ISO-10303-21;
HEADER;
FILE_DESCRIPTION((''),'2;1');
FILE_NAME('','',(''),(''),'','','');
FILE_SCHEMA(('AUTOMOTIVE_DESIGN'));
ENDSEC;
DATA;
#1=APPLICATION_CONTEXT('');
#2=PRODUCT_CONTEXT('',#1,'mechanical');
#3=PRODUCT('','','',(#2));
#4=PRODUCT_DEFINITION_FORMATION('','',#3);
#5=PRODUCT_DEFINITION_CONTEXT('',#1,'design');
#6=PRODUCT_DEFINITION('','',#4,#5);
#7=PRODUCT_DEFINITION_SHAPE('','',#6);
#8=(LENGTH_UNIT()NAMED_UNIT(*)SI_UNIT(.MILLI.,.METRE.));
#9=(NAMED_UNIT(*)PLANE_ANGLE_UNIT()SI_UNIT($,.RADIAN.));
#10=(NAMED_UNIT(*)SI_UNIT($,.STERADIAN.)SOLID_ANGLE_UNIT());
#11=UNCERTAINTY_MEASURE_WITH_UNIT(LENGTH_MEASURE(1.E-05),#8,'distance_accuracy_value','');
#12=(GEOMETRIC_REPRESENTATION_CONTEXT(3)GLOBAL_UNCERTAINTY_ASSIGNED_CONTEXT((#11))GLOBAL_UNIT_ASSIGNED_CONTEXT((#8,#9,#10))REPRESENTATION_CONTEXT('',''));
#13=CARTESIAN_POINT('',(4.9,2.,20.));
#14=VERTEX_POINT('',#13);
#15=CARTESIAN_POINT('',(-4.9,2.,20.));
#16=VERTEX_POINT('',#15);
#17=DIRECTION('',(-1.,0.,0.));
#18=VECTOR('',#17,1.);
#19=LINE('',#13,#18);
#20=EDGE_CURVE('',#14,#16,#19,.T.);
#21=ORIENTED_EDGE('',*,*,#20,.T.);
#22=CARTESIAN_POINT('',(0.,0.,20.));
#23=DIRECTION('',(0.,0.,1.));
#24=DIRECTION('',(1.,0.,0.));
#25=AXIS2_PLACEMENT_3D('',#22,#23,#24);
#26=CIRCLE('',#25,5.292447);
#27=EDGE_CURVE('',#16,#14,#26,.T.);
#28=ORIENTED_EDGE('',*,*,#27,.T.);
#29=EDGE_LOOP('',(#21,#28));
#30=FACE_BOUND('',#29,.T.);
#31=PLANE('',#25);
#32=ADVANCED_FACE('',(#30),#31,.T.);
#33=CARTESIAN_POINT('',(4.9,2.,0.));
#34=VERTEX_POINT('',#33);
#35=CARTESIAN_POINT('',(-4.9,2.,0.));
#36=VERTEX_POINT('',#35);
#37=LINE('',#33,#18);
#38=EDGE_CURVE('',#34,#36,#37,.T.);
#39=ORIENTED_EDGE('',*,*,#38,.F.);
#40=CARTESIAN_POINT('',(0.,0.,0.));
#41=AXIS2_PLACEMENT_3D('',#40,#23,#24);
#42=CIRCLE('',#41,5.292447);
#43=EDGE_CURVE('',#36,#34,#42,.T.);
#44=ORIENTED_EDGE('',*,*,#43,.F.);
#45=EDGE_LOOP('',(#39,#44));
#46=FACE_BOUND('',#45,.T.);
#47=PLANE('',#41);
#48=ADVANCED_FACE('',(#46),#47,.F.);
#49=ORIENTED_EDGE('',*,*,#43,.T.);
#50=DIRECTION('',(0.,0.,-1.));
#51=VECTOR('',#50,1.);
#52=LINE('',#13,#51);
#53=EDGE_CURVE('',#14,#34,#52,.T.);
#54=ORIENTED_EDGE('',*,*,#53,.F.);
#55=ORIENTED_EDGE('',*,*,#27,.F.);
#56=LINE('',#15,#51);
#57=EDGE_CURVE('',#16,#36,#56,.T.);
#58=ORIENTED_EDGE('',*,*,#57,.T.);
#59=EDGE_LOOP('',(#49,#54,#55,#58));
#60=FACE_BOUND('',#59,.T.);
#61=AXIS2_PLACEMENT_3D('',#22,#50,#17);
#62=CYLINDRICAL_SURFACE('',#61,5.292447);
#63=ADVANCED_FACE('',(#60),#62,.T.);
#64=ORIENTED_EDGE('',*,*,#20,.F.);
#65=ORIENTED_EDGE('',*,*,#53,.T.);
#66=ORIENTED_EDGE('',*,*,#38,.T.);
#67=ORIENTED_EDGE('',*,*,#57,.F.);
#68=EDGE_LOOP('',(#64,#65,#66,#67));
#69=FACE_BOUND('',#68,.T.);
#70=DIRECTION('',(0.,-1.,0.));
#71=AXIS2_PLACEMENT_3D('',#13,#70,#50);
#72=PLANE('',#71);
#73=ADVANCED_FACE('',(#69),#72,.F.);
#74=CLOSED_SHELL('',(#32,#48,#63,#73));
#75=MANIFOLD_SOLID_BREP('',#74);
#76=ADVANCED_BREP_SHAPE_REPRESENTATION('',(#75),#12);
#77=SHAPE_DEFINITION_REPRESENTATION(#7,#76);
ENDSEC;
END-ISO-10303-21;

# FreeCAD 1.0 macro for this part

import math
import FreeCAD as App
import Part
import Sketcher
Q = App.Units.Quantity

doc = App.newDocument("Part")
params = doc.addObject("Spreadsheet::Sheet", "Params")
for row, (alias, value) in enumerate([
    ("sketch1_width", "9.8 mm"),
    ("pad1_length", "20 mm"),
], start=1):
    params.set(f"A{row}", alias)
    params.set(f"B{row}", "=" + value)
    params.setAlias(f"B{row}", alias)

body = doc.addObject("PartDesign::Body", "Body")

# Sketch on XY plane
sketch1 = doc.addObject("Sketcher::SketchObject", "Sketch")
body.addObject(sketch1)
sketch1.AttachmentSupport = (doc.XY_Plane, [""])
sketch1.MapMode = "FlatFace"
sketch1.addGeometry([
    Part.LineSegment(App.Vector(5, 2, 0), App.Vector(-5, 2, 0)),
    Part.ArcOfCircle(Part.Circle(App.Vector(0, 0, 0), App.Vector(0, 0, 1), 5), math.radians(158), math.radians(382)),
], False)
sketch1.addConstraint([
    Sketcher.Constraint("Coincident", 0, 1, 1, 2),
    Sketcher.Constraint("Coincident", 1, 1, 0, 2),
    Sketcher.Constraint("Horizontal", 0),
    Sketcher.Constraint("Coincident", 1, 3, -1, 1),
    Sketcher.Constraint("DistanceX", 0, 2, 0, 1, Q("9.8 mm")),
    Sketcher.Constraint("DistanceY", -1, 1, 0, 1, Q("2 mm")),
])
sketch1.setExpression("Constraints[4]", "Params.sketch1_width")
pad1 = doc.addObject("PartDesign::Pad", "Pad")
body.addObject(pad1)
pad1.Profile = sketch1
pad1.setExpression("Length", "Params.pad1_length")

doc.recompute()
